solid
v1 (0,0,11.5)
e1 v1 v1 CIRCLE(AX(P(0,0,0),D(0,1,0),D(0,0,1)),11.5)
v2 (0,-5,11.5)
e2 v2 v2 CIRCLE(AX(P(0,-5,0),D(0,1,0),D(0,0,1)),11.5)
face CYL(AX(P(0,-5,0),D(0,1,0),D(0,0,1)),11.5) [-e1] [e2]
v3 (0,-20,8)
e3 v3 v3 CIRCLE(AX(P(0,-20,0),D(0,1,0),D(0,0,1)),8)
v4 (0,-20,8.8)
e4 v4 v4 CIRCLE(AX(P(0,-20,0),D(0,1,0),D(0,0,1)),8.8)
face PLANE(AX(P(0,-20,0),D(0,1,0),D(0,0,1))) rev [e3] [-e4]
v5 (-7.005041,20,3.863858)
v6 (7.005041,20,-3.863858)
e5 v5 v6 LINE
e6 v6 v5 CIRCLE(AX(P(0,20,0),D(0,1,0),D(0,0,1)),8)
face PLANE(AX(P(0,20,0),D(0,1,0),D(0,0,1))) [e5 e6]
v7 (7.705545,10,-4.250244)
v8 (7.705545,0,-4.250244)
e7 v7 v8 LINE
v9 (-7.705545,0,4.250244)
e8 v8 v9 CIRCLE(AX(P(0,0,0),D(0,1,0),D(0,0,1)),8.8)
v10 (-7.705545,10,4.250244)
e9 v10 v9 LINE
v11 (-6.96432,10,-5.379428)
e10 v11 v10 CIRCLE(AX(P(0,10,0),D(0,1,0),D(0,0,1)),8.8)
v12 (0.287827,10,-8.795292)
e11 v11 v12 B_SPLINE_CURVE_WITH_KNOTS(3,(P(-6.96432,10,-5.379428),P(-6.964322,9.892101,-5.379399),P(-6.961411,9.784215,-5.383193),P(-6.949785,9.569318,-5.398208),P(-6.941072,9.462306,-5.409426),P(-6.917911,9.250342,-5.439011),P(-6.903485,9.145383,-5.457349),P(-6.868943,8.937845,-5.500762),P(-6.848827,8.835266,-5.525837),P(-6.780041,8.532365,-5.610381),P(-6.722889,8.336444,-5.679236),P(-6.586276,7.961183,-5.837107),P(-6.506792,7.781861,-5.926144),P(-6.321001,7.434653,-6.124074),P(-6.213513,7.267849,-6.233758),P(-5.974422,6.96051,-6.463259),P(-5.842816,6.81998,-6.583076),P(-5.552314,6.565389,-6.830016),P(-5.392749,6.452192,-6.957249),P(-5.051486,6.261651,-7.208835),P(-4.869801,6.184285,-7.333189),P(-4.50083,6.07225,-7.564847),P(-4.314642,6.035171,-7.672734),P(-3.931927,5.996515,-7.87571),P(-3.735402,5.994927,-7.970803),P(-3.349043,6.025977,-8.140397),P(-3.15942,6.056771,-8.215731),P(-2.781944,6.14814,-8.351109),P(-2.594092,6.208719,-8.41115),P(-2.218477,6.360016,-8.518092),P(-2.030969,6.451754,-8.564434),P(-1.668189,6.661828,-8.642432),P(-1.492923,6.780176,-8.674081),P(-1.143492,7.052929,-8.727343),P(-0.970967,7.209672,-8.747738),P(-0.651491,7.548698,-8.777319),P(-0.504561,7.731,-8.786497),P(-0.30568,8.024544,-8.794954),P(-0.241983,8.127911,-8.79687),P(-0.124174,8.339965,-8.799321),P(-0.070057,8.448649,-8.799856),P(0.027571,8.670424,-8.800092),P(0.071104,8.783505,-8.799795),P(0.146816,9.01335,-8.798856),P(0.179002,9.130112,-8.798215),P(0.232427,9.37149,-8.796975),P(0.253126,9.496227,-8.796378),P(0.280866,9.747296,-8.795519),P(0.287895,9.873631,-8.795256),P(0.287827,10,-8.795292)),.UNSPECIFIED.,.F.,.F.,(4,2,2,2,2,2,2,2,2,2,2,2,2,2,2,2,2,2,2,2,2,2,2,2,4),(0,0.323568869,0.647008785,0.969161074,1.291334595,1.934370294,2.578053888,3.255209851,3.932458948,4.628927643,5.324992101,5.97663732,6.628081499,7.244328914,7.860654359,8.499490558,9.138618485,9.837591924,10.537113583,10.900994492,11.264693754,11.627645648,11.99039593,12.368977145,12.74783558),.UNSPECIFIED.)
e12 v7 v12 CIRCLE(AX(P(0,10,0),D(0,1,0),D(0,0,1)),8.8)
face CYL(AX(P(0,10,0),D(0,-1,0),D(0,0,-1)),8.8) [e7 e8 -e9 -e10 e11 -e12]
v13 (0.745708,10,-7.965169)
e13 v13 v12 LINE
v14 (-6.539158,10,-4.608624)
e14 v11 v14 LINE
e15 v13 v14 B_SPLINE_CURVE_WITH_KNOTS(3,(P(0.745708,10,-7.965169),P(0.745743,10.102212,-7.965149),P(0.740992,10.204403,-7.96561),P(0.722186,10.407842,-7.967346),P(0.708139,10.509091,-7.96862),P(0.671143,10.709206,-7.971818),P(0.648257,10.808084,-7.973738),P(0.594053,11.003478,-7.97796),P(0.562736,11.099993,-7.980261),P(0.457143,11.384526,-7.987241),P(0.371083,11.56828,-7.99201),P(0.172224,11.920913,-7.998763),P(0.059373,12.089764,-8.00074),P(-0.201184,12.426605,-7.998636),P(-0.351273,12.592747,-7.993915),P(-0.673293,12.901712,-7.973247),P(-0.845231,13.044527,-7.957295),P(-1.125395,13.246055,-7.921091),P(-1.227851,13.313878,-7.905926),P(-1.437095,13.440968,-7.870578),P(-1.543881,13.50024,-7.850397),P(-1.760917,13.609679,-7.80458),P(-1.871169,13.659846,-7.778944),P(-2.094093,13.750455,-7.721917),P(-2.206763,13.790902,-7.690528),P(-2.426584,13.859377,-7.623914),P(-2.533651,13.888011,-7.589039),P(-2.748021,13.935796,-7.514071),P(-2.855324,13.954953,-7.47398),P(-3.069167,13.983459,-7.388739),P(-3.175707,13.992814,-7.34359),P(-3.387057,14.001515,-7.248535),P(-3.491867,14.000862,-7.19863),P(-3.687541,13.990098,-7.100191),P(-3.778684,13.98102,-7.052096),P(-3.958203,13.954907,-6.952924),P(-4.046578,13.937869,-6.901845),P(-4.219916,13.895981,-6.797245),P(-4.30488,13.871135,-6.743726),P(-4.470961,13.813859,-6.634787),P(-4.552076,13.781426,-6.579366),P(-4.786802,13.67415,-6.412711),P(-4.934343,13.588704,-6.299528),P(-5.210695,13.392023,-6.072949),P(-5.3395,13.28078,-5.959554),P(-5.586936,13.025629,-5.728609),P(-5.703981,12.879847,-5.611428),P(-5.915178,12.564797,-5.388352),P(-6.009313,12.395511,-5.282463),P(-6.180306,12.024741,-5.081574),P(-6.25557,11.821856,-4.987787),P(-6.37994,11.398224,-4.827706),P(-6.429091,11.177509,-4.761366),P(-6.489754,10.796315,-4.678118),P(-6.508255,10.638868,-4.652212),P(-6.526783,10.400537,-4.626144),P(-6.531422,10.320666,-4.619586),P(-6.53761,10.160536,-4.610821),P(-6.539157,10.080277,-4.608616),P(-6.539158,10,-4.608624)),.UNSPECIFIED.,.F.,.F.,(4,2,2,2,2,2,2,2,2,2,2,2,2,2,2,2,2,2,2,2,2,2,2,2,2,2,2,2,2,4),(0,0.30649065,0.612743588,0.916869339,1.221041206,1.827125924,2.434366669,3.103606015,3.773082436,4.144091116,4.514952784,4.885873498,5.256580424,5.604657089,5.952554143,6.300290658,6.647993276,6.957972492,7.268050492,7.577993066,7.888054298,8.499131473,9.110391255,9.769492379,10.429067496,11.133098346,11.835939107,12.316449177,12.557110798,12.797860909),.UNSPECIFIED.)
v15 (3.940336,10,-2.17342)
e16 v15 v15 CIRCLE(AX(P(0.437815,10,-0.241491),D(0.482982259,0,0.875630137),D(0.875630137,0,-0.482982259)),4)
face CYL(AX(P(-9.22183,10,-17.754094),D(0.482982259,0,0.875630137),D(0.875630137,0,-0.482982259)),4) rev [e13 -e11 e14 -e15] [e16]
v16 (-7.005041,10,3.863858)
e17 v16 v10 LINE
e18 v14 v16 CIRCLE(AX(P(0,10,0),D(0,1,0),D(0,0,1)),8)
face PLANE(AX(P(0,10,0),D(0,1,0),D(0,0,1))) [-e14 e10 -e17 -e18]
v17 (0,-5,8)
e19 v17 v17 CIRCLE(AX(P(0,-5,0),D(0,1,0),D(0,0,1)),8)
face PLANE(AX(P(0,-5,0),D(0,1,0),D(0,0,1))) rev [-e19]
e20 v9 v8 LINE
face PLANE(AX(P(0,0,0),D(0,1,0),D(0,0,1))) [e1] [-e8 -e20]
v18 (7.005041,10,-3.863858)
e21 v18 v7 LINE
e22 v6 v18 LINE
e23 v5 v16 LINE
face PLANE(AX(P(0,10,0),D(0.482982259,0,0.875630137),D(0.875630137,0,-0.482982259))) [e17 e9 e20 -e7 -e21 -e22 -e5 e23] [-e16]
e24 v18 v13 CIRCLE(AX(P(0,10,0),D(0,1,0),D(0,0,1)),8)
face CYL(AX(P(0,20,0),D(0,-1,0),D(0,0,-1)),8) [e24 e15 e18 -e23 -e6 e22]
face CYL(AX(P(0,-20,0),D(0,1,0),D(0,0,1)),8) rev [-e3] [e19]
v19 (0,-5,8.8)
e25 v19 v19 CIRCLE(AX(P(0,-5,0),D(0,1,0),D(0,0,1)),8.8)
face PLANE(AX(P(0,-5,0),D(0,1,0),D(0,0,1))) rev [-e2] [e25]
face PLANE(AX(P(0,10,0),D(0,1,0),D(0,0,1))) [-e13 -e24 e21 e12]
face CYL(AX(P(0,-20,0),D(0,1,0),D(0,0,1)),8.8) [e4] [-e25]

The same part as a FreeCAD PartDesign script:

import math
import FreeCAD as App
import Part
import Sketcher
from FreeCAD import Vector

doc = App.newDocument("Part")
body = doc.addObject("PartDesign::Body", "Body")

# Sketch on XZ plane
sketch1 = body.newObject("Sketcher::SketchObject", "Sketch")
sketch1.AttachmentSupport = (doc.getObject("XZ_Plane"), [""])
sketch1.MapMode = "FlatFace"
sketch1.addGeometry([
    Part.LineSegment(Vector(-7.7, 4.3, 0), Vector(-7, 3.9, 0)),
    Part.ArcOfCircle(Part.Circle(Vector(0, 0, 0), Vector(0, 0, 1), 8), math.radians(151), math.radians(331)),
    Part.LineSegment(Vector(7, -3.9, 0), Vector(7.7, -4.3, 0)),
    Part.ArcOfCircle(Part.Circle(Vector(0, 0, 0), Vector(0, 0, 1), 8.8), math.radians(151), math.radians(331)),
], False)
sketch1.addConstraint([
    Sketcher.Constraint("Coincident", 0, 2, 1, 1),
    Sketcher.Constraint("Coincident", 1, 2, 2, 1),
    Sketcher.Constraint("Coincident", 2, 2, 3, 2),
    Sketcher.Constraint("Coincident", 3, 1, 0, 1),
    Sketcher.Constraint("Coincident", 1, 3, -1, 1),
    Sketcher.Constraint("Coincident", 3, 3, -1, 1),
    Sketcher.Constraint("Parallel", 0, 2),
    Sketcher.Constraint("Radius", 1, 8.0),
    Sketcher.Constraint("Radius", 3, 8.8),
    Sketcher.Constraint("DistanceY", 2, 2, 0, 2, 8.114102),
    Sketcher.Constraint("DistanceX", 0, 2, -1, 1, 7.005041),
    Sketcher.Constraint("DistanceX", -1, 1, 1, 2, 7.005041),
])
pad1 = body.newObject("PartDesign::Pad", "Pad")
pad1.Profile = sketch1
pad1.Length = 10
pad1.Reversed = True

# Sketch on XZ plane
sketch2 = body.newObject("Sketcher::SketchObject", "Sketch001")
sketch2.AttachmentSupport = (doc.getObject("XZ_Plane"), [""])
sketch2.MapMode = "FlatFace"
sketch2.addGeometry([
    Part.Circle(Vector(0, 0, 0), Vector(0, 0, 1), 11.5),  # 0
    Part.ArcOfCircle(Part.Circle(Vector(0, 0, 0), Vector(0, 0, 1), 8.8), math.radians(-29), math.radians(151)),  # 1
    Part.LineSegment(Vector(-7.7, 4.3, 0), Vector(-7, 3.9, 0)),  # 2
    Part.ArcOfCircle(Part.Circle(Vector(0, 0, 0), Vector(0, 0, 1), 8), math.radians(-29), math.radians(151)),  # 3
    Part.LineSegment(Vector(7, -3.9, 0), Vector(7.7, -4.3, 0)),  # 4
], False)
sketch2.addConstraint([
    Sketcher.Constraint("Coincident", 1, 2, 2, 1),
    Sketcher.Constraint("Coincident", 2, 2, 3, 2),
    Sketcher.Constraint("Coincident", 3, 1, 4, 1),
    Sketcher.Constraint("Coincident", 4, 2, 1, 1),
    Sketcher.Constraint("Coincident", 0, 3, -1, 1),
    Sketcher.Constraint("Coincident", 1, 3, -1, 1),
    Sketcher.Constraint("Coincident", 3, 3, -1, 1),
    Sketcher.Constraint("Parallel", 2, 4),
    Sketcher.Constraint("Diameter", 0, 23.0),
    Sketcher.Constraint("Radius", 3, 8.0),
    Sketcher.Constraint("Radius", 1, 8.8),
    Sketcher.Constraint("DistanceY", 3, 1, 1, 2, 8.114102),
    Sketcher.Constraint("DistanceX", 2, 2, -1, 1, 7.005041),
    Sketcher.Constraint("DistanceX", -1, 1, 3, 1, 7.005041),
])
pad2 = body.newObject("PartDesign::Pad", "Pad001")
pad2.Profile = sketch2
pad2.Length = 5

# Sketch on XZ plane
sketch3 = body.newObject("Sketcher::SketchObject", "Sketch002")
sketch3.AttachmentSupport = (doc.getObject("XZ_Plane"), [""])
sketch3.MapMode = "FlatFace"
sketch3.addGeometry([
    Part.ArcOfCircle(Part.Circle(Vector(0, 0, 0), Vector(0, 0, 1), 8), math.radians(0), math.radians(151)),  # 0
    Part.LineSegment(Vector(-7, 3.9, 0), Vector(-7.7, 4.3, 0)),  # 1
    Part.ArcOfCircle(Part.Circle(Vector(0, 0, 0), Vector(0, 0, 1), 8.8), math.radians(0), math.radians(151)),  # 2
    Part.ArcOfCircle(Part.Circle(Vector(0, 0, 0), Vector(0, 0, 1), 8.8), math.radians(-29), math.radians(0)),  # 3
    Part.LineSegment(Vector(7.7, -4.3, 0), Vector(7, -3.9, 0)),  # 4
    Part.ArcOfCircle(Part.Circle(Vector(0, 0, 0), Vector(0, 0, 1), 8), math.radians(-29), math.radians(0)),  # 5
], False)
sketch3.addConstraint([
    Sketcher.Constraint("Coincident", 0, 2, 1, 1),
    Sketcher.Constraint("Coincident", 1, 2, 2, 2),
    Sketcher.Constraint("Tangent", 2, 1, 3, 2),
    Sketcher.Constraint("Coincident", 3, 1, 4, 1),
    Sketcher.Constraint("Coincident", 4, 2, 5, 1),
    Sketcher.Constraint("Tangent", 5, 2, 0, 1),
    Sketcher.Constraint("Coincident", 0, 3, -1, 1),
    Sketcher.Constraint("Coincident", 2, 3, -1, 1),
    Sketcher.Constraint("Equal", 2, 3),
    Sketcher.Constraint("Equal", 0, 5),
    Sketcher.Constraint("PointOnObject", 2, 1, -1),
    Sketcher.Constraint("PointOnObject", 5, 2, -1),
    Sketcher.Constraint("Parallel", 1, 4),
    Sketcher.Constraint("Radius", 0, 8.0),
    Sketcher.Constraint("Radius", 2, 8.8),
    Sketcher.Constraint("DistanceX", 0, 2, -1, 1, 7.005041),
    Sketcher.Constraint("DistanceX", -1, 1, 4, 2, 7.005041),
    Sketcher.Constraint("DistanceX", 1, 2, -1, 1, 7.705545),
])
pad3 = body.newObject("PartDesign::Pad", "Pad002")
pad3.Profile = sketch3
pad3.Length = 5

# Sketch on XZ plane
sketch4 = body.newObject("Sketcher::SketchObject", "Sketch003")
sketch4.AttachmentSupport = (doc.getObject("XZ_Plane"), [""])
sketch4.MapMode = "FlatFace"
sketch4.addGeometry([
    Part.ArcOfCircle(Part.Circle(Vector(0, 0, 0), Vector(0, 0, 1), 8), math.radians(151), math.radians(331)),
    Part.LineSegment(Vector(-7, 4, 0), Vector(7, -4, 0)),
], False)
sketch4.addConstraint([
    Sketcher.Constraint("Coincident", 0, 1, 1, 1),
    Sketcher.Constraint("Coincident", 1, 2, 0, 2),
    Sketcher.Constraint("Coincident", 0, 3, -1, 1),
    Sketcher.Constraint("Radius", 0, 8.0),
    Sketcher.Constraint("DistanceX", 0, 1, -1, 1, 7.005041),
    Sketcher.Constraint("DistanceX", -1, 1, 1, 2, 7.005041),
])
pad4 = body.newObject("PartDesign::Pad", "Pad003")
pad4.Profile = sketch4
pad4.Length = 20
pad4.Reversed = True

# Sketch on XZ plane
sketch5 = body.newObject("Sketcher::SketchObject", "Sketch004")
sketch5.AttachmentSupport = (doc.getObject("XZ_Plane"), [""])
sketch5.MapMode = "FlatFace"
sketch5.addGeometry([
    Part.Circle(Vector(0, 0, 0), Vector(0, 0, 1), 12),
    Part.Circle(Vector(0, 0, 0), Vector(0, 0, 1), 9),
    Part.Circle(Vector(0, 0, 0), Vector(0, 0, 1), 8),
], False)
sketch5.addConstraint([
    Sketcher.Constraint("Coincident", 0, 3, -1, 1),
    Sketcher.Constraint("Coincident", 1, 3, -1, 1),
    Sketcher.Constraint("Coincident", 2, 3, -1, 1),
    Sketcher.Constraint("Diameter", 0, 23.0),
    Sketcher.Constraint("Diameter", 2, 16.0),
    Sketcher.Constraint("Diameter", 1, 17.6),
])
pad5 = body.newObject("PartDesign::Pad", "Pad004")
pad5.Profile = sketch5
pad5.Length = 5

# Sketch on XZ plane
sketch6 = body.newObject("Sketcher::SketchObject", "Sketch005")
sketch6.AttachmentSupport = (doc.getObject("XZ_Plane"), [""])
sketch6.MapMode = "FlatFace"
sketch6.addGeometry([
    Part.Circle(Vector(0, 0, 0), Vector(0, 0, 1), 9),
    Part.Circle(Vector(0, 0, 0), Vector(0, 0, 1), 8),
], False)
sketch6.addConstraint([
    Sketcher.Constraint("Coincident", 0, 3, -1, 1),
    Sketcher.Constraint("Coincident", 1, 3, -1, 1),
    Sketcher.Constraint("Diameter", 1, 16.0),
    Sketcher.Constraint("Diameter", 0, 17.6),
])
pad6 = body.newObject("PartDesign::Pad", "Pad005")
pad6.Profile = sketch6
pad6.Length = 20

# Sketch on an angled plane
sketch7 = body.newObject("Sketcher::SketchObject", "Sketch006")
sketch7.Placement = App.Placement(Vector(0, 0, 0), App.Rotation(Vector(0.875630137, 0, -0.482982259), Vector(0, 0.999999999, 0), Vector(0.482982259, 0, 0.875630137), "ZXY"))
sketch7.addGeometry(Part.Circle(Vector(0.5, 10, 0), Vector(0, 0, 1), 4), False)
sketch7.addConstraint([
    Sketcher.Constraint("Diameter", 0, 8.0),
    Sketcher.Constraint("DistanceY", -1, 1, 0, 3, 10.0),
    Sketcher.Constraint("DistanceX", -1, 1, 0, 3, 0.5),
])
pocket1 = body.newObject("PartDesign::Pocket", "Pocket")
pocket1.Profile = sketch7
pocket1.Length = 20

doc.recompute()
